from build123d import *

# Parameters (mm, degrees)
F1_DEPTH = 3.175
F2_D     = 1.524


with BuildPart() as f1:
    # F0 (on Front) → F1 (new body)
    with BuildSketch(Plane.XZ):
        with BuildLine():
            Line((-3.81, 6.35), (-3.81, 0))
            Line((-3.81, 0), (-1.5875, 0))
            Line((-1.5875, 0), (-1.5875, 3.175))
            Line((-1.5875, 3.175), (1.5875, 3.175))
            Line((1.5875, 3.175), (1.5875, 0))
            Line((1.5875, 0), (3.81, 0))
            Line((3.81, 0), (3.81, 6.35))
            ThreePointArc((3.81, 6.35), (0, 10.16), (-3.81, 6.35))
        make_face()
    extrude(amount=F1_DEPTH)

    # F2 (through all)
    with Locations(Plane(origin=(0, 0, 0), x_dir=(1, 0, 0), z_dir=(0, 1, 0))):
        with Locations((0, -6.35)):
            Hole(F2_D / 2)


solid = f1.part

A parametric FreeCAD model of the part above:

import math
import FreeCAD as App
import Part
import Sketcher
from FreeCAD import Vector
Q = App.Units.Quantity

doc = App.newDocument("Part")
body = doc.addObject("PartDesign::Body", "Body")

sketch1 = body.newObject("Sketcher::SketchObject", "Sketch")
sketch1.AttachmentSupport = (doc.getObject("XZ_Plane"), [""])
sketch1.MapMode = "FlatFace"
sketch1.addGeometry(Part.LineSegment(Vector(-3.8, 6.3, 0), Vector(-3.8, 0, 0)), False)
sketch1.addGeometry(Part.LineSegment(Vector(-3.8, 0, 0), Vector(-1.6, 0, 0)), False)
sketch1.addGeometry(Part.LineSegment(Vector(-1.6, 0, 0), Vector(-1.6, 3.2, 0)), False)
sketch1.addGeometry(Part.LineSegment(Vector(-1.6, 3.2, 0), Vector(1.6, 3.2, 0)), False)
sketch1.addGeometry(Part.LineSegment(Vector(1.6, 3.2, 0), Vector(1.6, 0, 0)), False)
sketch1.addGeometry(Part.LineSegment(Vector(1.6, 0, 0), Vector(3.8, 0, 0)), False)
sketch1.addGeometry(Part.LineSegment(Vector(3.8, 0, 0), Vector(3.8, 6.3, 0)), False)
sketch1.addGeometry(Part.ArcOfCircle(Part.Circle(Vector(0, 6.3, 0), Vector(0, 0, 1), 3.8), math.radians(0), math.radians(180)), False)
sketch1.addConstraint(Sketcher.Constraint("Coincident", 0, 2, 1, 1))
sketch1.addConstraint(Sketcher.Constraint("Coincident", 1, 2, 2, 1))
sketch1.addConstraint(Sketcher.Constraint("Coincident", 2, 2, 3, 1))
sketch1.addConstraint(Sketcher.Constraint("Coincident", 3, 2, 4, 1))
sketch1.addConstraint(Sketcher.Constraint("Coincident", 4, 2, 5, 1))
sketch1.addConstraint(Sketcher.Constraint("Coincident", 5, 2, 6, 1))
sketch1.addConstraint(Sketcher.Constraint("Tangent", 6, 2, 7, 1))
sketch1.addConstraint(Sketcher.Constraint("Tangent", 7, 2, 0, 1))
sketch1.addConstraint(Sketcher.Constraint("Vertical", 0))
sketch1.addConstraint(Sketcher.Constraint("Horizontal", 1))
sketch1.addConstraint(Sketcher.Constraint("Vertical", 2))
sketch1.addConstraint(Sketcher.Constraint("Horizontal", 3))
sketch1.addConstraint(Sketcher.Constraint("Vertical", 4))
sketch1.addConstraint(Sketcher.Constraint("Horizontal", 5))
sketch1.addConstraint(Sketcher.Constraint("Vertical", 6))
sketch1.addConstraint(Sketcher.Constraint("Symmetric", 1, 2, 4, 2, -1, 1))
sketch1.addConstraint(Sketcher.Constraint("Symmetric", 0, 2, 5, 2, -2))
sketch1.addConstraint(Sketcher.Constraint("Equal", 3, 2))
sketch1.addConstraint(Sketcher.Constraint("Radius", 7, Q("0.15 in")))
sketch1.addConstraint(Sketcher.Constraint("DistanceY", 0, 2, 0, 1, Q("0.25 in")))
sketch1.addConstraint(Sketcher.Constraint("DistanceX", 3, 1, 3, 2, Q("0.125 in")))
pad1 = body.newObject("PartDesign::Pad", "Pad")
pad1.Profile = sketch1
pad1.Length = Q("0.125 in")

sketch2 = body.newObject("Sketcher::SketchObject", "Sketch001")
sketch2.AttachmentSupport = (doc.getObject("XZ_Plane"), [""])
sketch2.MapMode = "FlatFace"
sketch2.addGeometry(Part.Circle(Vector(0, 6.3, 0), Vector(0, 0, 1), 0.8), False)
sketch2.addConstraint(Sketcher.Constraint("PointOnObject", 0, 3, -2))
sketch2.addConstraint(Sketcher.Constraint("Diameter", 0, Q("0.06 in")))
sketch2.addConstraint(Sketcher.Constraint("DistanceY", -1, 1, 0, 3, Q("0.25 in")))
doc.recompute()
hole = body.newObject("PartDesign::Hole", "Hole")
hole.Profile = sketch2
hole.ThreadType = "None"
hole.Diameter = Q("0.06 in")
hole.DepthType = "ThroughAll"
hole.Reversed = True

doc.recompute()
